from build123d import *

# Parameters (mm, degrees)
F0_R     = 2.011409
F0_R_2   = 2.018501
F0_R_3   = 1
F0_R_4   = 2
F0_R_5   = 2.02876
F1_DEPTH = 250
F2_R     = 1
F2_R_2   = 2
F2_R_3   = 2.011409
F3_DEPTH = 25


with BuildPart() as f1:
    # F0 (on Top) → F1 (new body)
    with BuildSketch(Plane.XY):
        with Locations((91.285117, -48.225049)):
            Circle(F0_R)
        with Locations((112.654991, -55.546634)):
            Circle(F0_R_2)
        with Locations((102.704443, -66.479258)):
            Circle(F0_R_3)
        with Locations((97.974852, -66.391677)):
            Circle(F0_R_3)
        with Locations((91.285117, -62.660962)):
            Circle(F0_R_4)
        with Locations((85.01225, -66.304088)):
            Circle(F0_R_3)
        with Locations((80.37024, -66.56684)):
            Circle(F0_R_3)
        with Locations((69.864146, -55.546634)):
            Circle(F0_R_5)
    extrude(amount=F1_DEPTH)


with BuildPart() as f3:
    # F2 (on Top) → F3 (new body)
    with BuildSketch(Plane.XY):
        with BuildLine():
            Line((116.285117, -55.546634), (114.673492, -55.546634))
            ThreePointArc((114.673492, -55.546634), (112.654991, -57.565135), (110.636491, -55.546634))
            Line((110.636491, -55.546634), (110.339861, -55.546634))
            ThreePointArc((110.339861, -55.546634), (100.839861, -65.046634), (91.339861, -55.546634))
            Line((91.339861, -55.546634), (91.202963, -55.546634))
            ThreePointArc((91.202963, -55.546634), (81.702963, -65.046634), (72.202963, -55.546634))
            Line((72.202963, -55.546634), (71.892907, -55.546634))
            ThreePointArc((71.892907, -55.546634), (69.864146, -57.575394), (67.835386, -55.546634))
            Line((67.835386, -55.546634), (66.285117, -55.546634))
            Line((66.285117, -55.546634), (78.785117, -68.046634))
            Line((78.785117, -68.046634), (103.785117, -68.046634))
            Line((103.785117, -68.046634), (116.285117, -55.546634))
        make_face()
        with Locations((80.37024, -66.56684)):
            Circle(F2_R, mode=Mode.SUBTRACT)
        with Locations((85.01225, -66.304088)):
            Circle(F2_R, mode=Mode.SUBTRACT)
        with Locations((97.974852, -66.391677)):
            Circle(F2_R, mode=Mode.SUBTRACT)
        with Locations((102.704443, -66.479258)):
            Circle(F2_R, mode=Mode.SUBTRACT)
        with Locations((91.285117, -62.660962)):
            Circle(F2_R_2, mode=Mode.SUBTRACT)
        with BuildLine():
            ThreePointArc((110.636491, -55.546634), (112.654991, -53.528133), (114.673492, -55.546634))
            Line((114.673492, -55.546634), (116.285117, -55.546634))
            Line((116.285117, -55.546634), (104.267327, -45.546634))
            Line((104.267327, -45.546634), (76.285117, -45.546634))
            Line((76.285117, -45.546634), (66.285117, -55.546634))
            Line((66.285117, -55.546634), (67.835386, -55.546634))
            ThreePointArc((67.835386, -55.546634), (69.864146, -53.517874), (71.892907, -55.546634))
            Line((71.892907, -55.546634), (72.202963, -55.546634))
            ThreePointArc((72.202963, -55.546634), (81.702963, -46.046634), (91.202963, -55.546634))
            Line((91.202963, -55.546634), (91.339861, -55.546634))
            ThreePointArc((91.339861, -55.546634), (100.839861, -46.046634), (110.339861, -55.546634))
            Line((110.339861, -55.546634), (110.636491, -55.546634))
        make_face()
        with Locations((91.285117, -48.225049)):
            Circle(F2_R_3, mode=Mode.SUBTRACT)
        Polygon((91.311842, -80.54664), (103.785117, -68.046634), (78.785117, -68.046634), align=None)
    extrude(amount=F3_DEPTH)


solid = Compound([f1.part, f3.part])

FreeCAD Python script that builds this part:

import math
import FreeCAD as App
import Part
import Sketcher

V = App.Vector
Q = App.Units.Quantity

doc = App.newDocument("Part")
body = doc.addObject("PartDesign::Body", "Body")
body.AllowCompound = True

sketch1 = doc.addObject("Sketcher::SketchObject", "Sketch")
body.addObject(sketch1)
sketch1.AttachmentSupport = (doc.XY_Plane, [""])
sketch1.MapMode = "FlatFace"
sketch1.addGeometry([
    Part.Circle(V(91.3, -48.2, 0), V(0, 0, 1), 2),
    Part.Circle(V(112.7, -55.5, 0), V(0, 0, 1), 2),
    Part.Circle(V(102.7, -66.5, 0), V(0, 0, 1), 1),
    Part.Circle(V(98, -66.4, 0), V(0, 0, 1), 1),
    Part.Circle(V(91.3, -62.7, 0), V(0, 0, 1), 2),
    Part.Circle(V(85, -66.3, 0), V(0, 0, 1), 1),
    Part.Circle(V(80.4, -66.6, 0), V(0, 0, 1), 1),
    Part.Circle(V(69.9, -55.5, 0), V(0, 0, 1), 2),
], False)
sketch1.addConstraint([
    Sketcher.Constraint("Equal", 2, 3),
    Sketcher.Constraint("Equal", 3, 5),
    Sketcher.Constraint("Equal", 5, 6),
    Sketcher.Constraint("Horizontal", 1, 3, 7, 3),
    Sketcher.Constraint("Vertical", 0, 3, 4, 3),
    Sketcher.Constraint("Diameter", 2, Q("2 mm")),
    Sketcher.Constraint("Diameter", 4, Q("4 mm")),
    Sketcher.Constraint("Diameter", 7, Q("4.05752 mm")),
    Sketcher.Constraint("Diameter", 0, Q("4.022818 mm")),
    Sketcher.Constraint("Diameter", 1, Q("4.037002 mm")),
    Sketcher.Constraint("DistanceY", 0, 3, -1, 1, Q("48.225049 mm")),
    Sketcher.Constraint("DistanceX", -1, 1, 1, 3, Q("112.654991 mm")),
    Sketcher.Constraint("DistanceY", 2, 3, -1, 1, Q("66.479258 mm")),
    Sketcher.Constraint("DistanceX", -1, 1, 3, 3, Q("97.974852 mm")),
    Sketcher.Constraint("DistanceY", 4, 3, -1, 1, Q("62.660962 mm")),
    Sketcher.Constraint("DistanceX", -1, 1, 5, 3, Q("85.01225 mm")),
    Sketcher.Constraint("DistanceX", -1, 1, 6, 3, Q("80.37024 mm")),
    Sketcher.Constraint("DistanceY", 6, 3, -1, 1, Q("66.56684 mm")),
    Sketcher.Constraint("DistanceX", 3, 3, 2, 3, Q("4.729591 mm")),
    Sketcher.Constraint("DistanceY", 2, 3, 3, 3, Q("0.087581 mm")),
    Sketcher.Constraint("DistanceY", 4, 3, 1, 3, Q("7.114328 mm")),
    Sketcher.Constraint("DistanceY", 3, 3, 5, 3, Q("0.087589 mm")),
    Sketcher.Constraint("DistanceX", 7, 3, 4, 3, Q("21.420971 mm")),
    Sketcher.Constraint("DistanceX", -1, 1, 0, 3, Q("91.285117 mm")),
])
pad1 = doc.addObject("PartDesign::Pad", "Pad")
body.addObject(pad1)
pad1.Profile = sketch1
pad1.Length = 250
body2 = doc.addObject("PartDesign::Body", "Body001")

sketch2 = doc.addObject("Sketcher::SketchObject", "Sketch001")
body2.addObject(sketch2)
sketch2.AttachmentSupport = (doc.getObject("XY_Plane001"), [""])
sketch2.MapMode = "FlatFace"
sketch2.addGeometry([
    Part.LineSegment(V(103.8, -68, 0), V(116.3, -55.5, 0)),
    Part.LineSegment(V(116.3, -55.5, 0), V(104.3, -45.5, 0)),
    Part.LineSegment(V(104.3, -45.5, 0), V(76.3, -45.5, 0)),
    Part.LineSegment(V(76.3, -45.5, 0), V(66.3, -55.5, 0)),
    Part.LineSegment(V(66.3, -55.5, 0), V(78.8, -68, 0)),
    Part.LineSegment(V(78.8, -68, 0), V(91.3, -80.5, 0)),
    Part.LineSegment(V(91.3, -80.5, 0), V(103.8, -68, 0)),
    Part.Circle(V(80.4, -66.6, 0), V(0, 0, 1), 1),
    Part.Circle(V(85, -66.3, 0), V(0, 0, 1), 1),
    Part.Circle(V(98, -66.4, 0), V(0, 0, 1), 1),
    Part.Circle(V(102.7, -66.5, 0), V(0, 0, 1), 1),
    Part.Circle(V(91.3, -62.7, 0), V(0, 0, 1), 2),
    Part.ArcOfCircle(Part.Circle(V(69.9, -55.5, 0), V(0, 0, 1), 2), math.radians(-180), math.radians(0)),
    Part.ArcOfCircle(Part.Circle(V(69.9, -55.5, 0), V(0, 0, 1), 2), math.radians(0), math.radians(180)),
    Part.Circle(V(81.7, -55.5, 0), V(0, 0, 1), 9.5),
    Part.Circle(V(100.8, -55.5, 0), V(0, 0, 1), 9.5),
    Part.ArcOfCircle(Part.Circle(V(112.7, -55.5, 0), V(0, 0, 1), 2), math.radians(180), math.radians(360)),
    Part.ArcOfCircle(Part.Circle(V(112.7, -55.5, 0), V(0, 0, 1), 2), math.radians(0), math.radians(180)),
    Part.Circle(V(91.3, -48.2, 0), V(0, 0, 1), 2),
], False)
sketch2.addConstraint([
    Sketcher.Constraint("Coincident", 0, 2, 1, 1),
    Sketcher.Constraint("Coincident", 1, 2, 2, 1),
    Sketcher.Constraint("Coincident", 2, 2, 3, 1),
    Sketcher.Constraint("Coincident", 3, 2, 4, 1),
    Sketcher.Constraint("Coincident", 4, 2, 5, 1),
    Sketcher.Constraint("Coincident", 5, 2, 6, 1),
    Sketcher.Constraint("Coincident", 6, 2, 0, 1),
    Sketcher.Constraint("Tangent", 12, 1, 13, 2),
    Sketcher.Constraint("Coincident", 13, 1, 12, 2),
    Sketcher.Constraint("Tangent", 16, 1, 17, 2),
    Sketcher.Constraint("Coincident", 17, 1, 16, 2),
    Sketcher.Constraint("Horizontal", 2),
    Sketcher.Constraint("Equal", 7, 8),
    Sketcher.Constraint("Equal", 8, 9),
    Sketcher.Constraint("Equal", 9, 10),
    Sketcher.Constraint("Equal", 14, 15),
    Sketcher.Constraint("Parallel", 0, 3),
    Sketcher.Constraint("Perpendicular", 3, 4),
    Sketcher.Constraint("Horizontal", 13, 3, 14, 3),
    Sketcher.Constraint("Horizontal", 14, 3, 15, 3),
    Sketcher.Constraint("Horizontal", 15, 3, 16, 3),
    Sketcher.Constraint("Horizontal", 17, 3, 0, 2),
    Sketcher.Constraint("Horizontal", 0, 2, 3, 2),
    Sketcher.Constraint("Horizontal", 4, 2, 6, 2),
    Sketcher.Constraint("Horizontal", 3, 2, 12, 1),
    Sketcher.Constraint("Horizontal", 12, 1, 13, 1),
    Sketcher.Constraint("Horizontal", 13, 1, 16, 1),
    Sketcher.Constraint("Horizontal", 16, 1, 17, 1),
    Sketcher.Constraint("Vertical", 11, 3, 18, 3),
    Sketcher.Constraint("Equal", 0, 4),
    Sketcher.Constraint("Diameter", 7, Q("2 mm")),
    Sketcher.Constraint("Diameter", 11, Q("4 mm")),
    Sketcher.Constraint("Diameter", 14, Q("19 mm")),
    Sketcher.Constraint("DistanceY", 15, 3, 1, 2, Q("10 mm")),
    Sketcher.Constraint("DistanceX", 2, 2, 18, 3, Q("15 mm")),
    Sketcher.Constraint("Radius", 16, Q("2.018501 mm")),
    Sketcher.Constraint("DistanceY", 4, 2, 14, 3, Q("12.5 mm")),
    Sketcher.Constraint("DistanceX", 11, 3, 6, 2, Q("12.5 mm")),
    Sketcher.Constraint("Radius", 12, Q("2.028761 mm")),
    Sketcher.Constraint("Diameter", 18, Q("4.022818 mm")),
    Sketcher.Constraint("DistanceX", 2, 2, 2, 1, Q("27.98221 mm")),
    Sketcher.Constraint("DistanceX", 14, 3, 15, 3, Q("19.136898 mm")),
    Sketcher.Constraint("DistanceY", 5, 2, 7, 3, Q("13.9798 mm")),
    Sketcher.Constraint("Distance", 5, Q("17.696581 mm")),
    Sketcher.Constraint("DistanceX", -1, 1, 7, 3, Q("80.37024 mm")),
    Sketcher.Constraint("DistanceY", 7, 3, -1, 1, Q("66.56684 mm")),
    Sketcher.Constraint("DistanceX", -1, 1, 8, 3, Q("85.01225 mm")),
    Sketcher.Constraint("DistanceX", -1, 1, 9, 3, Q("97.974852 mm")),
    Sketcher.Constraint("DistanceY", 10, 3, -1, 1, Q("66.479258 mm")),
    Sketcher.Constraint("DistanceY", 11, 3, -1, 1, Q("62.660962 mm")),
    Sketcher.Constraint("DistanceX", -1, 1, 15, 3, Q("100.839861 mm")),
    Sketcher.Constraint("DistanceX", -1, 1, 16, 3, Q("112.654991 mm")),
    Sketcher.Constraint("DistanceY", 18, 3, -1, 1, Q("48.225049 mm")),
    Sketcher.Constraint("DistanceX", -1, 1, 5, 2, Q("91.311842 mm")),
    Sketcher.Constraint("DistanceY", 9, 3, 8, 3, Q("0.087589 mm")),
    Sketcher.Constraint("DistanceX", 9, 3, 10, 3, Q("4.729591 mm")),
    Sketcher.Constraint("DistanceY", 10, 3, 9, 3, Q("0.087581 mm")),
    Sketcher.Constraint("DistanceX", 12, 3, 11, 3, Q("21.42097 mm")),
    Sketcher.Constraint("DistanceY", 11, 3, 12, 3, Q("7.114328 mm")),
])
pad2 = doc.addObject("PartDesign::Pad", "Pad001")
body2.addObject(pad2)
pad2.Profile = sketch2
pad2.Length = 25

doc.recompute()
